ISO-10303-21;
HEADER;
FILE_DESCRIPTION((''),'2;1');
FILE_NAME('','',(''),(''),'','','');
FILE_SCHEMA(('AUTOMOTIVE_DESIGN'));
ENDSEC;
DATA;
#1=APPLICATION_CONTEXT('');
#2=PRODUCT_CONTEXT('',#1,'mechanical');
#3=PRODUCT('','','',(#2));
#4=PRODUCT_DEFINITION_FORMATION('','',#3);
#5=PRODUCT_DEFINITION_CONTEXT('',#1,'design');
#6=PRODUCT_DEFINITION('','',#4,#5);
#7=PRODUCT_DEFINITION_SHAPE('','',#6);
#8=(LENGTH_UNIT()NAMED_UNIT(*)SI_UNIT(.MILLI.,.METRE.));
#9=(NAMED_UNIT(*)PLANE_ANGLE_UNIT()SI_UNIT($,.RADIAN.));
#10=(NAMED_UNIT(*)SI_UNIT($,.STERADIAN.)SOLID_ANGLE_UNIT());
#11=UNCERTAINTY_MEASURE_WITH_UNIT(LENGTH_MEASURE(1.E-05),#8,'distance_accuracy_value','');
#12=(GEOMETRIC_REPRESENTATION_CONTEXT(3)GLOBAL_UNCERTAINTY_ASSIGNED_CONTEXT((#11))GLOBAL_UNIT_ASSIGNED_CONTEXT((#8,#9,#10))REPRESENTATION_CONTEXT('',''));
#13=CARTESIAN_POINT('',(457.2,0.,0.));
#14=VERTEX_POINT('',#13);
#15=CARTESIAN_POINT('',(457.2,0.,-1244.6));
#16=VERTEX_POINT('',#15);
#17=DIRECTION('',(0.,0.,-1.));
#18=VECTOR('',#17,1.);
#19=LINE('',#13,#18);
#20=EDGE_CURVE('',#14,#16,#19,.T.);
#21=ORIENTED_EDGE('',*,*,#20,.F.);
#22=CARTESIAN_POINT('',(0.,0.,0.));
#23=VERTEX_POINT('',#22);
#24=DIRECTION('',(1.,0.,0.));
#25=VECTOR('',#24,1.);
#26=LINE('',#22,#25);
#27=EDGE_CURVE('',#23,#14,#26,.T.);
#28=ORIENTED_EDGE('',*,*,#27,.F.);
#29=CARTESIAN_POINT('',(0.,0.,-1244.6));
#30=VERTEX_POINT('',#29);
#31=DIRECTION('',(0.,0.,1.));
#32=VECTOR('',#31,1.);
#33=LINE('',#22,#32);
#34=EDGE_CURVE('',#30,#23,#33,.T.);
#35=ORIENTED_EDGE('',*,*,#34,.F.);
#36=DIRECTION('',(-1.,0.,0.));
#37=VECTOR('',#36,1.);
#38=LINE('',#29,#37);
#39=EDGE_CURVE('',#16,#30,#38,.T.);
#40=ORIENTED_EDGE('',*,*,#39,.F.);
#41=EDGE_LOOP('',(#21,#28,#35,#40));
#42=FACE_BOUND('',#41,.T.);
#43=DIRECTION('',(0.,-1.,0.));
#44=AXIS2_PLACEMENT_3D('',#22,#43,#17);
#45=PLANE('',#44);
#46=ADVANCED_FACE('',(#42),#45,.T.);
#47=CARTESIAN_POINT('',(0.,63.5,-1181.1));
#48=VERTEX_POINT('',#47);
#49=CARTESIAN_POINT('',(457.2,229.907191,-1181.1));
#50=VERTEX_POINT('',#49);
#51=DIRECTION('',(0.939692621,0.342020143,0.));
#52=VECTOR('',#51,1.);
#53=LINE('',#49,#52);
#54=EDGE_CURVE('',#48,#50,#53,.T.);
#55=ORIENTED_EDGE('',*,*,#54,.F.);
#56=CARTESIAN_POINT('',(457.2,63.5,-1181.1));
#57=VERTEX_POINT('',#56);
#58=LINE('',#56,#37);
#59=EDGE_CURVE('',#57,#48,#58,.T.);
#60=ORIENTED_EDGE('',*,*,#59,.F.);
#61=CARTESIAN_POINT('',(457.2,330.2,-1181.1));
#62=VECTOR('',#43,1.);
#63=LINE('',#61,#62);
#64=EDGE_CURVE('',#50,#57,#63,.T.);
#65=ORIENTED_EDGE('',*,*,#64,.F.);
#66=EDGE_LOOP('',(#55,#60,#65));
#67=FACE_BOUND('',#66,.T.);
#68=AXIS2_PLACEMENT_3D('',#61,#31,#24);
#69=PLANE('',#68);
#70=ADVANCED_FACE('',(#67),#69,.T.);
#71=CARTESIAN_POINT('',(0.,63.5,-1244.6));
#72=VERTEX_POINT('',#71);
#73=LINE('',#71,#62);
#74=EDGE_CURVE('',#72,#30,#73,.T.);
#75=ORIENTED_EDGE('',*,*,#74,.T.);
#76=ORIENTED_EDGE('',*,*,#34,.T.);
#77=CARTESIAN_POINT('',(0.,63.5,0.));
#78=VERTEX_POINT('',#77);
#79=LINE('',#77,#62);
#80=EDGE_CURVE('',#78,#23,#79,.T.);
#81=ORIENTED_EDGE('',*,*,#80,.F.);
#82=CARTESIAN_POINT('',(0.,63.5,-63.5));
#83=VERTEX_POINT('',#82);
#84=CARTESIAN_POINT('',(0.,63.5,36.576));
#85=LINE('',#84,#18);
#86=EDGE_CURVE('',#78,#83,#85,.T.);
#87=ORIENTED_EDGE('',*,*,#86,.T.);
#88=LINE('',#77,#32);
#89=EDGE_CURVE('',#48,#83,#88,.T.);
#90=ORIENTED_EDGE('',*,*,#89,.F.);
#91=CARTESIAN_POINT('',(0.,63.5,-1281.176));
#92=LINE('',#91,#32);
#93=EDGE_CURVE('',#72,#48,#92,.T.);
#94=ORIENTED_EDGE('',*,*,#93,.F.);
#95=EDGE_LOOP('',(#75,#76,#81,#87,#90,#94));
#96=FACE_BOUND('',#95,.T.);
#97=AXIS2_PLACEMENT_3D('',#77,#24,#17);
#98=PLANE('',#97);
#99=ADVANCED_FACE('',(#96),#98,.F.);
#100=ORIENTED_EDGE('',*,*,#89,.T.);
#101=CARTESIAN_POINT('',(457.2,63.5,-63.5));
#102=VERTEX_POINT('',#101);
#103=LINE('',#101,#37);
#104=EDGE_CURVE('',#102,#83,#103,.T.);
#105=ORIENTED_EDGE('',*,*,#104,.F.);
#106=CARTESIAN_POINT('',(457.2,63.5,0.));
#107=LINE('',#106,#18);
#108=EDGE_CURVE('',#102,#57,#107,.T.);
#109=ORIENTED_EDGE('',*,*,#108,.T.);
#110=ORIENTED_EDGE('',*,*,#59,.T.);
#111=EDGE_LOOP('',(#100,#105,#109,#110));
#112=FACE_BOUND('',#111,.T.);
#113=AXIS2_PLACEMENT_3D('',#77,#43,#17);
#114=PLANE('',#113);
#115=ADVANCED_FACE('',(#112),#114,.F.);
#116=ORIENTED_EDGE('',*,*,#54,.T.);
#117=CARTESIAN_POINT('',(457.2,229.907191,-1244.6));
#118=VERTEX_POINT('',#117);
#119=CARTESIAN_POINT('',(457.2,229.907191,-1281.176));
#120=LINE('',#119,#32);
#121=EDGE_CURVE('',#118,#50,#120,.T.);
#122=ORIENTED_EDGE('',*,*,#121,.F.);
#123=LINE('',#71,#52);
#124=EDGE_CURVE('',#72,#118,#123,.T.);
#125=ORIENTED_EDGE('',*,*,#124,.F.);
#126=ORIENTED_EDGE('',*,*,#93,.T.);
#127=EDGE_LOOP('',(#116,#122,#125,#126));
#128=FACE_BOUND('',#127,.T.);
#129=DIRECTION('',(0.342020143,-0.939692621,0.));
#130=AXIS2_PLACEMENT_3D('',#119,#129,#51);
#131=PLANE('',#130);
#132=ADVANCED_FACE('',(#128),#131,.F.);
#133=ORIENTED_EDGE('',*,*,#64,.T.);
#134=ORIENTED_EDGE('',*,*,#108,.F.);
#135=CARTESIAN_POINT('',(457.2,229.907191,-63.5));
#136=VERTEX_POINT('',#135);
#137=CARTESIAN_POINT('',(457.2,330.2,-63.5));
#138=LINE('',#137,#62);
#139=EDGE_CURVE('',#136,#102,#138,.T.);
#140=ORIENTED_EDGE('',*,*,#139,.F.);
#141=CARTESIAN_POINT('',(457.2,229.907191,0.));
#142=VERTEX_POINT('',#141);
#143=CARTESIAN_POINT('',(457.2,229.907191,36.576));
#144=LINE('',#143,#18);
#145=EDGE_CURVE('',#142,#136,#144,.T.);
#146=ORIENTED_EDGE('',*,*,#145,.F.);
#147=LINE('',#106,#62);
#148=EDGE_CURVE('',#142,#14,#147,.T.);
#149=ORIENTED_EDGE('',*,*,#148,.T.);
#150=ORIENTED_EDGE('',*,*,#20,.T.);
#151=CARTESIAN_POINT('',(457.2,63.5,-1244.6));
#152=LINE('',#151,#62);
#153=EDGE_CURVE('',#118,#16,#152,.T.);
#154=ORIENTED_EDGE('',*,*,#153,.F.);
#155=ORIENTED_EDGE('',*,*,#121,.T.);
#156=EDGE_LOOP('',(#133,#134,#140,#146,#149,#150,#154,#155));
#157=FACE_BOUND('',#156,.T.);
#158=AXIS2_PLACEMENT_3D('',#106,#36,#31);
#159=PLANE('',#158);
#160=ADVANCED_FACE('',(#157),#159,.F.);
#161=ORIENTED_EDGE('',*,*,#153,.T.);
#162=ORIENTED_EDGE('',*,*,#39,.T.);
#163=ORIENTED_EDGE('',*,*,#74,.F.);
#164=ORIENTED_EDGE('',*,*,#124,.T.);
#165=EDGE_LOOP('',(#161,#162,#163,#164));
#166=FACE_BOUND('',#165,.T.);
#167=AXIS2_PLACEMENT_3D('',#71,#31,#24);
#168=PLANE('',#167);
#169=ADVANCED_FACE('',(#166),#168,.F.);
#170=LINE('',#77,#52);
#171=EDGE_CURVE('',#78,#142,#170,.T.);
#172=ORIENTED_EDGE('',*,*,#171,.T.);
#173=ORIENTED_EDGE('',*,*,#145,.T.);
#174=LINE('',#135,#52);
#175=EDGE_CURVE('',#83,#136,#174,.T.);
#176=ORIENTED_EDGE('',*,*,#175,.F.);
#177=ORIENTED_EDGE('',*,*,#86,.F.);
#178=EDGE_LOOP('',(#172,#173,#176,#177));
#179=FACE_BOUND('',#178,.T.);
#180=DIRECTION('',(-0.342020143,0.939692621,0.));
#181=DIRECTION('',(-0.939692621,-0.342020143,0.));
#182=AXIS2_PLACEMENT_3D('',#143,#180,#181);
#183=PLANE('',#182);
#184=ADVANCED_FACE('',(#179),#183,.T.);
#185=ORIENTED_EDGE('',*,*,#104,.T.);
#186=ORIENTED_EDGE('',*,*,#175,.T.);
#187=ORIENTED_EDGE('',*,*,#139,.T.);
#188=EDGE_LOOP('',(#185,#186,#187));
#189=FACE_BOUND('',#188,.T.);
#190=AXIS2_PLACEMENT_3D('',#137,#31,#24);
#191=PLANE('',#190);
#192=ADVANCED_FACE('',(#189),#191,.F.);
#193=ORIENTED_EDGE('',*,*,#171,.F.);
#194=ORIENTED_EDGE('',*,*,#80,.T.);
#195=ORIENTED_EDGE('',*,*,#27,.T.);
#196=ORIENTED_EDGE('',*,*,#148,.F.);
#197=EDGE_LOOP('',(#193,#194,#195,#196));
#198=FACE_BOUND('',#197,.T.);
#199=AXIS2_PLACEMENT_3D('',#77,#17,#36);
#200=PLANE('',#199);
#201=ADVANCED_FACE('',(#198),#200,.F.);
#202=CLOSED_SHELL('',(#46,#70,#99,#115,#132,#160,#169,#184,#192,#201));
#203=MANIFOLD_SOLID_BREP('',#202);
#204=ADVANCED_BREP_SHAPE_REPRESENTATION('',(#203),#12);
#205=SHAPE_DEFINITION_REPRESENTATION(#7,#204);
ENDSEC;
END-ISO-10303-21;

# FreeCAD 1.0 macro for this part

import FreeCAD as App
import Part
import Sketcher
from FreeCAD import Vector
Q = App.Units.Quantity

doc = App.newDocument("Part")
body = doc.addObject("PartDesign::Body", "Body")

# Sketch on XZ plane
sketch1 = body.newObject("Sketcher::SketchObject", "Sketch")
sketch1.AttachmentSupport = (doc.getObject("XZ_Plane"), [""])
sketch1.MapMode = "FlatFace"
sketch1.addGeometry([
    Part.LineSegment(Vector(0, -1245, 0), Vector(0, 0, 0)),
    Part.LineSegment(Vector(0, 0, 0), Vector(457, 0, 0)),
    Part.LineSegment(Vector(457, 0, 0), Vector(457, -1245, 0)),
    Part.LineSegment(Vector(457, -1245, 0), Vector(0, -1245, 0)),
], False)
sketch1.addConstraint([
    Sketcher.Constraint("Coincident", 0, 2, 1, 1),
    Sketcher.Constraint("Coincident", 1, 2, 2, 1),
    Sketcher.Constraint("Coincident", 2, 2, 3, 1),
    Sketcher.Constraint("Coincident", 3, 2, 0, 1),
    Sketcher.Constraint("Vertical", 0),
    Sketcher.Constraint("Horizontal", 1),
    Sketcher.Constraint("Vertical", 2),
    Sketcher.Constraint("Horizontal", 3),
    Sketcher.Constraint("Coincident", 0, 2, -1, 1),
    Sketcher.Constraint("DistanceX", 1, 1, 1, 2, Q("18 in")),
    Sketcher.Constraint("DistanceY", 0, 1, 0, 2, Q("49 in")),
])
pad1 = body.newObject("PartDesign::Pad", "Pad")
pad1.Profile = sketch1
pad1.Length = Q("2.5 in")
pad1.Reversed = True

# Sketch on XZ plane
sketch2 = body.newObject("Sketcher::SketchObject", "Sketch001")
sketch2.AttachmentSupport = (doc.getObject("XZ_Plane"), [""])
sketch2.MapMode = "FlatFace"
sketch2.AttachmentOffset = App.Placement(Vector(0, 0, -2.5 * 25.4), App.Rotation())
sketch2.addGeometry([
    Part.LineSegment(Vector(0, -1245, 0), Vector(0, -1181, 0)),
    Part.LineSegment(Vector(0, -1181, 0), Vector(457, -1181, 0)),
    Part.LineSegment(Vector(457, -1181, 0), Vector(457, -1245, 0)),
    Part.LineSegment(Vector(457, -1245, 0), Vector(0, -1245, 0)),
], False)
sketch2.addConstraint([
    Sketcher.Constraint("Coincident", 0, 2, 1, 1),
    Sketcher.Constraint("Coincident", 1, 2, 2, 1),
    Sketcher.Constraint("Coincident", 2, 2, 3, 1),
    Sketcher.Constraint("Coincident", 3, 2, 0, 1),
    Sketcher.Constraint("Vertical", 0),
    Sketcher.Constraint("Horizontal", 1),
    Sketcher.Constraint("Vertical", 2),
    Sketcher.Constraint("Horizontal", 3),
    Sketcher.Constraint("PointOnObject", 0, 2, -2),
    Sketcher.Constraint("DistanceX", 1, 1, 1, 2, Q("18 in")),
    Sketcher.Constraint("DistanceY", 0, 1, 0, 2, Q("2.5 in")),
    Sketcher.Constraint("DistanceY", 2, 2, -1, 1, Q("49 in")),
])
pad2 = body.newObject("PartDesign::Pad", "Pad001")
pad2.Profile = sketch2
pad2.Length = Q("10.5 in")
pad2.Reversed = True
doc.recompute()

datumplane = body.newObject("PartDesign::Plane", "DatumPlane")
datumplane.AttachmentSupport = (doc.getObject("XY_Plane"), [""])
datumplane.MapMode = "FlatFace"
datumplane.AttachmentOffset = App.Placement(Vector(0, 0, -24.5 * 25.4), App.Rotation())
mirrored = body.newObject("PartDesign::Mirrored", "Mirrored")
mirrored.Originals = [pad2]
mirrored.MirrorPlane = (datumplane, [""])
body.Tip = mirrored

# Sketch on XY plane
sketch3 = body.newObject("Sketcher::SketchObject", "Sketch002")
sketch3.AttachmentSupport = (doc.getObject("XY_Plane"), [""])
sketch3.MapMode = "FlatFace"
sketch3.AttachmentOffset = App.Placement(Vector(0, 0, -46.5 * 25.4), App.Rotation())
sketch3.addGeometry([
    Part.LineSegment(Vector(0, 330, 0), Vector(0, 64, 0)),
    Part.LineSegment(Vector(0, 64, 0), Vector(457, 230, 0)),
    Part.LineSegment(Vector(457, 230, 0), Vector(457, 330, 0)),
    Part.LineSegment(Vector(457, 330, 0), Vector(0, 330, 0)),
], False)
sketch3.addConstraint([
    Sketcher.Constraint("Coincident", 0, 2, 1, 1),
    Sketcher.Constraint("Coincident", 1, 2, 2, 1),
    Sketcher.Constraint("Coincident", 2, 2, 3, 1),
    Sketcher.Constraint("Coincident", 3, 2, 0, 1),
    Sketcher.Constraint("Vertical", 0),
    Sketcher.Constraint("Vertical", 2),
    Sketcher.Constraint("Horizontal", 3),
    Sketcher.Constraint("PointOnObject", 0, 2, -2),
    Sketcher.Constraint("DistanceX", 3, 2, 3, 1, Q("18 in")),
    Sketcher.Constraint("DistanceY", 0, 2, 0, 1, Q("10.5 in")),
    Sketcher.Constraint("DistanceY", -1, 1, 2, 2, Q("13 in")),
    Sketcher.Constraint("Angle", 1, Q("20 deg")),
])
pocket1 = body.newObject("PartDesign::Pocket", "Pocket")
pocket1.Profile = sketch3
pocket1.Length = Q("3.94 in")
doc.recompute()

datumplane2 = body.newObject("PartDesign::Plane", "DatumPlane001")
datumplane2.AttachmentSupport = (doc.getObject("XY_Plane"), [""])
datumplane2.MapMode = "FlatFace"
datumplane2.AttachmentOffset = App.Placement(Vector(0, 0, -24.5 * 25.4), App.Rotation())
mirrored2 = body.newObject("PartDesign::Mirrored", "Mirrored001")
mirrored2.Originals = [pocket1]
mirrored2.MirrorPlane = (datumplane2, [""])
body.Tip = mirrored2

doc.recompute()
